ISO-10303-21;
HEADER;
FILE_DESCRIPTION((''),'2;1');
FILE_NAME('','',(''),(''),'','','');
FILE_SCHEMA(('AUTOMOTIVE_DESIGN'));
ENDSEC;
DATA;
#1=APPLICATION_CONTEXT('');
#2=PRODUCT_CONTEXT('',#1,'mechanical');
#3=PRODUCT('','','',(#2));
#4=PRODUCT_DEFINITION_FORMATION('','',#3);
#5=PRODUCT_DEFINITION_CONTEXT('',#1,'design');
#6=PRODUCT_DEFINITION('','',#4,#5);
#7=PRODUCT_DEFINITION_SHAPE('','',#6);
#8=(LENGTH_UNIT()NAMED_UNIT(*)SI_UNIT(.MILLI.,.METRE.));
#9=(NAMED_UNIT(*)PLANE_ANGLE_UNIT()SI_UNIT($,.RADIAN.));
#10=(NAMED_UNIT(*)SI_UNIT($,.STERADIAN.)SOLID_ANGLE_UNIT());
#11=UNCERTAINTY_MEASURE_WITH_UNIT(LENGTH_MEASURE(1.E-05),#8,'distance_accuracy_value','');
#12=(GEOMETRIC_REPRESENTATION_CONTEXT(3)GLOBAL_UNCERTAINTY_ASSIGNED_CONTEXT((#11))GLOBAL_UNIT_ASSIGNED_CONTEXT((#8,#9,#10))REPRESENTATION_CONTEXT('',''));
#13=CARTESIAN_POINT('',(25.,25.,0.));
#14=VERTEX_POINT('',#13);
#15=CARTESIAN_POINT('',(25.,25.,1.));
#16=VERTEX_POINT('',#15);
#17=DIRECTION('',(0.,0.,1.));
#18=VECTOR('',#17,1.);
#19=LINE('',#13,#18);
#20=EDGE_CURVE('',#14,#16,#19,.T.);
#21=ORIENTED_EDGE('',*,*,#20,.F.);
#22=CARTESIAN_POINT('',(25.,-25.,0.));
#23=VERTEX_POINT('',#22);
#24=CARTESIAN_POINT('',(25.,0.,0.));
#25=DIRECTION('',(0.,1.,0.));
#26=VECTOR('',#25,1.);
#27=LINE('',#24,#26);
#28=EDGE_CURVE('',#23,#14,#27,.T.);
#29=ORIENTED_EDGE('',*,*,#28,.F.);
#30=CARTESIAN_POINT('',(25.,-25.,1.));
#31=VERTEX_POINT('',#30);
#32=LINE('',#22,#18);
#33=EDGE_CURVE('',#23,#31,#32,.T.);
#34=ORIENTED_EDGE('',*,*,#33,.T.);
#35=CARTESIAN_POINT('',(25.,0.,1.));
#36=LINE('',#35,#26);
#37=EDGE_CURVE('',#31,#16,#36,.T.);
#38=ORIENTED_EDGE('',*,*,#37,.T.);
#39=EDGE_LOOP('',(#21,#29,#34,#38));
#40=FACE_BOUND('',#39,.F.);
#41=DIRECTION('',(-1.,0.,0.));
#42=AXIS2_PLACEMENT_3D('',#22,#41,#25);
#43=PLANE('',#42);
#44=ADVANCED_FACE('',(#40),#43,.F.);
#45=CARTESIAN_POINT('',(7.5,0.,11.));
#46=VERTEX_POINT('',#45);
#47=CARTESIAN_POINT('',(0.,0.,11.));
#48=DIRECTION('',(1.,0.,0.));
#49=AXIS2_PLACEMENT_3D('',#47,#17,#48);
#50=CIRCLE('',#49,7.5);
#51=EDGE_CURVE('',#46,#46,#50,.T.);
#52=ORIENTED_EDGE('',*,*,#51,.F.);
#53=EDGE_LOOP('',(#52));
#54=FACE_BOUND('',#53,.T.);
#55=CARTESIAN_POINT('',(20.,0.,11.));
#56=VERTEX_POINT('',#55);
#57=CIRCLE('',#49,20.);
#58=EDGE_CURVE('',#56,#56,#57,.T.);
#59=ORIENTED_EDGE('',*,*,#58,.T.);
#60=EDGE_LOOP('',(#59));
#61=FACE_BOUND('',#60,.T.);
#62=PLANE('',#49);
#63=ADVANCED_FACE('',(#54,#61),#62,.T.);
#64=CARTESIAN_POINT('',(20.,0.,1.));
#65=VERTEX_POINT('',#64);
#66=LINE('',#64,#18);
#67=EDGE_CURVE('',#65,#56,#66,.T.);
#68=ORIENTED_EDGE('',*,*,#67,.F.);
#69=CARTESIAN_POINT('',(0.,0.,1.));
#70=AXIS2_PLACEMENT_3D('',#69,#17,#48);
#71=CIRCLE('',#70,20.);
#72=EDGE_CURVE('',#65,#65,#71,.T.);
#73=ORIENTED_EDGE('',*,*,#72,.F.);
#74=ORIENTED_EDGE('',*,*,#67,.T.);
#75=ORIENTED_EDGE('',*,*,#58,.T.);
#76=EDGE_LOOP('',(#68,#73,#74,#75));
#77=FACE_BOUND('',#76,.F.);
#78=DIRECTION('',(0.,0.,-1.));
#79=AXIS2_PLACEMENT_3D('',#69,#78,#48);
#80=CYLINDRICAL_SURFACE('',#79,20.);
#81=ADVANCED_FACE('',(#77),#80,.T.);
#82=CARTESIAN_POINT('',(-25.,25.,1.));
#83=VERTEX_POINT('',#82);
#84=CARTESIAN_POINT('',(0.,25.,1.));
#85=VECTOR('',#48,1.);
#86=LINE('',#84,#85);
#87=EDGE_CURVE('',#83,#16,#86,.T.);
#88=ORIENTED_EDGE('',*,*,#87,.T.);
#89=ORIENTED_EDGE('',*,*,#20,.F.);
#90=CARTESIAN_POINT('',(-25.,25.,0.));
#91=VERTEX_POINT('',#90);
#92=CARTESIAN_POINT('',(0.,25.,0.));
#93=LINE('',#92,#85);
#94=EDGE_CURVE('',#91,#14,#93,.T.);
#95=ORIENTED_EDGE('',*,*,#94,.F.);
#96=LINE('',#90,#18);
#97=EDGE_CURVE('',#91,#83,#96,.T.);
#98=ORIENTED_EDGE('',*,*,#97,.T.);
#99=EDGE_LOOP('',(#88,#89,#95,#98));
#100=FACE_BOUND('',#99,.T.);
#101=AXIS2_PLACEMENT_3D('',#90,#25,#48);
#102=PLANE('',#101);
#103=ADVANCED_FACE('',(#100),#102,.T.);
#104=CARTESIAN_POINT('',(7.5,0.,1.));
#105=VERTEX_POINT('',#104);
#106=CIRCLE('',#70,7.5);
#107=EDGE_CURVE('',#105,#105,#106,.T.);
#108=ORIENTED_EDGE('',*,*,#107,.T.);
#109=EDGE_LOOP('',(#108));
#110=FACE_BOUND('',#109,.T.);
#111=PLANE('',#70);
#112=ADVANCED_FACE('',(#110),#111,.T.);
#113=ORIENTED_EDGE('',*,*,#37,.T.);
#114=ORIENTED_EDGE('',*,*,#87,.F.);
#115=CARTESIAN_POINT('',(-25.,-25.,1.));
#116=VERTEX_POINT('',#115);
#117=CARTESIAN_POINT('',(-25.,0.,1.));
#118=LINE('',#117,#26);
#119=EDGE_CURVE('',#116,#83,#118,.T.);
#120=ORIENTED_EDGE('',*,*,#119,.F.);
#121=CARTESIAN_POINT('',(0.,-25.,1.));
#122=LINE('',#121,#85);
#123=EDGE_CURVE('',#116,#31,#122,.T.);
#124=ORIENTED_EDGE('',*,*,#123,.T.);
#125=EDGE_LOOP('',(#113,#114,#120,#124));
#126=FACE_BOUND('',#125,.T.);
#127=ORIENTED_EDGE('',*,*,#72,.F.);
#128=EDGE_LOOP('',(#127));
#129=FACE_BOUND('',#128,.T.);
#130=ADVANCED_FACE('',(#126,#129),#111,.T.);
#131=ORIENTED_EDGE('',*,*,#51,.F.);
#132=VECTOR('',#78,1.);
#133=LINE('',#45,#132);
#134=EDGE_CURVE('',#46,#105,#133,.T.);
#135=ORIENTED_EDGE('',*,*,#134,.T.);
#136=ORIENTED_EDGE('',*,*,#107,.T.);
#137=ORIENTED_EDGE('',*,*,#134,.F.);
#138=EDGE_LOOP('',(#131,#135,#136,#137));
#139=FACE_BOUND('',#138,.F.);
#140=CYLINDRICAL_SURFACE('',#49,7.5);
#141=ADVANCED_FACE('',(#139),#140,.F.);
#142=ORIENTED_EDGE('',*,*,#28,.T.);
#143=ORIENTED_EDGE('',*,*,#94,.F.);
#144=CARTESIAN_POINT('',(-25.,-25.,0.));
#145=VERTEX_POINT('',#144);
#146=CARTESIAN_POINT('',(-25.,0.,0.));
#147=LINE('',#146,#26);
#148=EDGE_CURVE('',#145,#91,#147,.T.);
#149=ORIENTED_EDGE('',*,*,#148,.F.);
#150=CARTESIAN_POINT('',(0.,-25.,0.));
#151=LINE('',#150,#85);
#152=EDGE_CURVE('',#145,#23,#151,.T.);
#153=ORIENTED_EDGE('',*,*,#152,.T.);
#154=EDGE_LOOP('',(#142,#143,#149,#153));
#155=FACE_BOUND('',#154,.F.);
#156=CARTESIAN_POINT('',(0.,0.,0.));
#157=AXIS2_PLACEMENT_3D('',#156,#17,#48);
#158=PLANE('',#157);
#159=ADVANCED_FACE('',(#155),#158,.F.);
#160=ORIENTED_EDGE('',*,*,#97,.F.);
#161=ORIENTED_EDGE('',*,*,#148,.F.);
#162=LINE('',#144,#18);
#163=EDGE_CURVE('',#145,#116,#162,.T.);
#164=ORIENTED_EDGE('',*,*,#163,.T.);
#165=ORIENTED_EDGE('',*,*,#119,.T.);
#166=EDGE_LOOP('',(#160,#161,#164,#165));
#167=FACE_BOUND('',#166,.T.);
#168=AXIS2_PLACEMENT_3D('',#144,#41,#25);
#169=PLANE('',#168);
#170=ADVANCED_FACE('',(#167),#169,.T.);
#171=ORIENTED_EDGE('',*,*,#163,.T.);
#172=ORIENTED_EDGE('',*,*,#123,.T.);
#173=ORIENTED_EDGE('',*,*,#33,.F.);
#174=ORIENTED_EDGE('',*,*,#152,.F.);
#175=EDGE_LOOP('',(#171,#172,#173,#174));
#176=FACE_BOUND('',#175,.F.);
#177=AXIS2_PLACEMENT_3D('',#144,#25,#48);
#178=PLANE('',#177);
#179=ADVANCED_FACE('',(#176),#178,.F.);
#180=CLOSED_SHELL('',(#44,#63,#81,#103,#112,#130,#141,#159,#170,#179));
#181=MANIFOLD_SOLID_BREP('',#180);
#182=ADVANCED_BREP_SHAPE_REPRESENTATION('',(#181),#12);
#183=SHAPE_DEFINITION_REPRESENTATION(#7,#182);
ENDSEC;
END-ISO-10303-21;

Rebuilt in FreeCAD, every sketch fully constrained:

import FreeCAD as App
import Part
import Sketcher

V = App.Vector
Q = App.Units.Quantity

doc = App.newDocument("Part")
params = doc.addObject("Spreadsheet::Sheet", "Params")
for row, (alias, value) in enumerate([
    ("sketch1_width", "50 mm"),
    ("pad1_length", "1 mm"),
    ("sketch2_diameter", "40 mm"),
    ("pad2_length", "10 mm"),
    ("sketch3_diameter", "15 mm"),
    ("pocket1_length", "10 mm"),
], start=1):
    params.set(f"A{row}", alias)
    params.set(f"B{row}", "=" + value)
    params.setAlias(f"B{row}", alias)

body = doc.addObject("PartDesign::Body", "Body")

# Sketch on XY plane
sketch1 = body.newObject("Sketcher::SketchObject", "Sketch")
sketch1.AttachmentSupport = (doc.getObject("XY_Plane"), [""])
sketch1.MapMode = "FlatFace"
sketch1.addGeometry([
    Part.LineSegment(V(-25, 25, 0), V(-25, -25, 0)),
    Part.LineSegment(V(-25, -25, 0), V(25, -25, 0)),
    Part.LineSegment(V(25, -25, 0), V(25, 25, 0)),
    Part.LineSegment(V(25, 25, 0), V(-25, 25, 0)),
], False)
sketch1.addConstraint([
    Sketcher.Constraint("Coincident", 0, 2, 1, 1),
    Sketcher.Constraint("Coincident", 1, 2, 2, 1),
    Sketcher.Constraint("Coincident", 2, 2, 3, 1),
    Sketcher.Constraint("Coincident", 3, 2, 0, 1),
    Sketcher.Constraint("Vertical", 0),
    Sketcher.Constraint("Horizontal", 1),
    Sketcher.Constraint("Vertical", 2),
    Sketcher.Constraint("Horizontal", 3),
    Sketcher.Constraint("Symmetric", 0, 2, 2, 2, -1, 1),
    Sketcher.Constraint("Equal", 3, 0),
    Sketcher.Constraint("DistanceX", 1, 1, 1, 2, Q("50 mm")),
])
sketch1.setExpression("Constraints[10]", "Params.sketch1_width")
pad1 = body.newObject("PartDesign::Pad", "Pad")
pad1.Profile = sketch1
pad1.setExpression("Length", "Params.pad1_length")

# Sketch on XY plane
sketch2 = body.newObject("Sketcher::SketchObject", "Sketch001")
sketch2.AttachmentSupport = (doc.getObject("XY_Plane"), [""])
sketch2.MapMode = "FlatFace"
sketch2.AttachmentOffset = App.Placement(V(0, 0, 1), App.Rotation())
sketch2.addGeometry(Part.Circle(V(0, 0, 0), V(0, 0, 1), 20), False)
sketch2.addConstraint([
    Sketcher.Constraint("Coincident", 0, 3, -1, 1),
    Sketcher.Constraint("Diameter", 0, Q("40 mm")),
])
sketch2.setExpression("Constraints[1]", "Params.sketch2_diameter")
pad2 = body.newObject("PartDesign::Pad", "Pad001")
pad2.Profile = sketch2
pad2.setExpression("Length", "Params.pad2_length")

# Sketch on XY plane
sketch3 = body.newObject("Sketcher::SketchObject", "Sketch002")
sketch3.AttachmentSupport = (doc.getObject("XY_Plane"), [""])
sketch3.MapMode = "FlatFace"
sketch3.AttachmentOffset = App.Placement(V(0, 0, 11), App.Rotation())
sketch3.addGeometry(Part.Circle(V(0, 0, 0), V(0, 0, 1), 7.5), False)
sketch3.addConstraint([
    Sketcher.Constraint("Coincident", 0, 3, -1, 1),
    Sketcher.Constraint("Diameter", 0, Q("15 mm")),
])
sketch3.setExpression("Constraints[1]", "Params.sketch3_diameter")
pocket1 = body.newObject("PartDesign::Pocket", "Pocket")
pocket1.Profile = sketch3
pocket1.setExpression("Length", "Params.pocket1_length")

doc.recompute()
